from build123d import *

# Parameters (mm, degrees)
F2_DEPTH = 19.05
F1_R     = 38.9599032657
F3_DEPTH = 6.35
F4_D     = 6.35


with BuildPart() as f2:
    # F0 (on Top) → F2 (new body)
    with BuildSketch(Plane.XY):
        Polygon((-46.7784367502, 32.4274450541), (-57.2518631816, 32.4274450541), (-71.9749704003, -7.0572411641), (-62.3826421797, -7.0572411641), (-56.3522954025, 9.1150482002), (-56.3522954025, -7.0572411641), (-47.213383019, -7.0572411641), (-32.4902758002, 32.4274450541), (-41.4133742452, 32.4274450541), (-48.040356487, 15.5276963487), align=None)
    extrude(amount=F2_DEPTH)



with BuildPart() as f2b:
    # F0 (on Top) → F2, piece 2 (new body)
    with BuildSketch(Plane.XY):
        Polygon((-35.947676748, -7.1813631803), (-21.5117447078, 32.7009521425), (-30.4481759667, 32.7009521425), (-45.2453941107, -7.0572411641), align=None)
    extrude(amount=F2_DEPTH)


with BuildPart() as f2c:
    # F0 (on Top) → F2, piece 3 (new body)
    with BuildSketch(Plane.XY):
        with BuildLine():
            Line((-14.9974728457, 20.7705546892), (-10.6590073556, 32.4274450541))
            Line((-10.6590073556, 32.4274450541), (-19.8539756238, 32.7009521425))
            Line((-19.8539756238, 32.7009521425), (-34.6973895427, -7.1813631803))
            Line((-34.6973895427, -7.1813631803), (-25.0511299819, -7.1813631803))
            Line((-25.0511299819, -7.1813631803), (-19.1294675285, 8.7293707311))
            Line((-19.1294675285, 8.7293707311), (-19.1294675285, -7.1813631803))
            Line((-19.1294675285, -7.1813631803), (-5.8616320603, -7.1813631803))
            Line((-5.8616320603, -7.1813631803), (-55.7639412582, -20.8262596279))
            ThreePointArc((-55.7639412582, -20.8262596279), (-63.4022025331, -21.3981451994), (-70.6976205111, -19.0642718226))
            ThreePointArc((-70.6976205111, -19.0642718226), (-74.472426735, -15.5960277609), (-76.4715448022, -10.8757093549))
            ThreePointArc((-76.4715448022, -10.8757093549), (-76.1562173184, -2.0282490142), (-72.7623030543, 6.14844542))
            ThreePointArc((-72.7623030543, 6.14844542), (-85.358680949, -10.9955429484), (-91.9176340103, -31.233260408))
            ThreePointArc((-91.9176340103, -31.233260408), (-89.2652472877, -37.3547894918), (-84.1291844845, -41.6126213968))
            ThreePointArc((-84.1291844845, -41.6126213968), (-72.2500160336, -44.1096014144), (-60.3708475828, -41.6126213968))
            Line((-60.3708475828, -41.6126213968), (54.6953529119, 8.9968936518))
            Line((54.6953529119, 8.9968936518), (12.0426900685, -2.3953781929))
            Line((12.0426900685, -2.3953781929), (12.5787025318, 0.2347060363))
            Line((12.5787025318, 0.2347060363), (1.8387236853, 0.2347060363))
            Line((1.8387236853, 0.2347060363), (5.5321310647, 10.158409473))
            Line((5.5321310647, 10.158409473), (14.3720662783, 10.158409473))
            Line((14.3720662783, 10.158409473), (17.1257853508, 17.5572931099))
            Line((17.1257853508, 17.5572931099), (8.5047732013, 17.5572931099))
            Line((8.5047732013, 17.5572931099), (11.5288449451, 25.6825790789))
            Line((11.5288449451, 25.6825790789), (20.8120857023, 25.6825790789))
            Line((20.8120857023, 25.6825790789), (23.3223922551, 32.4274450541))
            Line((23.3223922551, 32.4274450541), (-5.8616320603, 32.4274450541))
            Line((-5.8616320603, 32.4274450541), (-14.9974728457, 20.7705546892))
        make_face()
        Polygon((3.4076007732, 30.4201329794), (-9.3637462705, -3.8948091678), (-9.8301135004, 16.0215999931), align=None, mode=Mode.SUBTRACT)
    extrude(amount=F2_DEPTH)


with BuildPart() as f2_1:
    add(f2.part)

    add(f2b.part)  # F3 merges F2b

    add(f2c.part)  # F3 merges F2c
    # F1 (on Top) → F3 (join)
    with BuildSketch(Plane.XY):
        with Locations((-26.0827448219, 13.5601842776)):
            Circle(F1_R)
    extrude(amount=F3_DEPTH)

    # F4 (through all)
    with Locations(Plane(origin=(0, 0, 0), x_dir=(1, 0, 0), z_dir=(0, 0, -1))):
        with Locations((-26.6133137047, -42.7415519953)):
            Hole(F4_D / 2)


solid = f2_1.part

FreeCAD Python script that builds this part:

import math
import FreeCAD as App
import Part
import Sketcher

V = App.Vector
Q = App.Units.Quantity

doc = App.newDocument("Part")
body = doc.addObject("PartDesign::Body", "Body")

# Sketch on XY plane
sketch1 = body.newObject("Sketcher::SketchObject", "Sketch")
sketch1.AttachmentSupport = (doc.getObject("XY_Plane"), [""])
sketch1.MapMode = "FlatFace"
sketch1.addGeometry(Part.LineSegment(V(-47, 32, 0), V(-57, 32, 0)), False)
sketch1.addGeometry(Part.LineSegment(V(-57, 32, 0), V(-72, -7, 0)), False)
sketch1.addGeometry(Part.LineSegment(V(-72, -7, 0), V(-62, -7, 0)), False)
sketch1.addGeometry(Part.LineSegment(V(-62, -7, 0), V(-56, 9, 0)), False)
sketch1.addGeometry(Part.LineSegment(V(-56, 9, 0), V(-56, -7, 0)), False)
sketch1.addGeometry(Part.LineSegment(V(-56, -7, 0), V(-47, -7, 0)), False)
sketch1.addGeometry(Part.LineSegment(V(-47, -7, 0), V(-32, 32, 0)), False)
sketch1.addGeometry(Part.LineSegment(V(-32, 32, 0), V(-41, 32, 0)), False)
sketch1.addGeometry(Part.LineSegment(V(-41, 32, 0), V(-48, 16, 0)), False)
sketch1.addGeometry(Part.LineSegment(V(-48, 16, 0), V(-47, 32, 0)), False)
sketch1.addConstraint(Sketcher.Constraint("Coincident", 0, 2, 1, 1))
sketch1.addConstraint(Sketcher.Constraint("Coincident", 1, 2, 2, 1))
sketch1.addConstraint(Sketcher.Constraint("Coincident", 2, 2, 3, 1))
sketch1.addConstraint(Sketcher.Constraint("Coincident", 3, 2, 4, 1))
sketch1.addConstraint(Sketcher.Constraint("Coincident", 4, 2, 5, 1))
sketch1.addConstraint(Sketcher.Constraint("Coincident", 5, 2, 6, 1))
sketch1.addConstraint(Sketcher.Constraint("Coincident", 6, 2, 7, 1))
sketch1.addConstraint(Sketcher.Constraint("Coincident", 7, 2, 8, 1))
sketch1.addConstraint(Sketcher.Constraint("Coincident", 8, 2, 9, 1))
sketch1.addConstraint(Sketcher.Constraint("Coincident", 9, 2, 0, 1))
sketch1.addConstraint(Sketcher.Constraint("Horizontal", 0))
sketch1.addConstraint(Sketcher.Constraint("Horizontal", 2))
sketch1.addConstraint(Sketcher.Constraint("Vertical", 4))
sketch1.addConstraint(Sketcher.Constraint("Horizontal", 5))
sketch1.addConstraint(Sketcher.Constraint("Horizontal", 7))
sketch1.addConstraint(Sketcher.Constraint("Parallel", 1, 3))
sketch1.addConstraint(Sketcher.Constraint("Parallel", 3, 6))
sketch1.addConstraint(Sketcher.Constraint("Horizontal", 2, 2, 4, 2))
sketch1.addConstraint(Sketcher.Constraint("Horizontal", 0, 2, 6, 2))
sketch1.addConstraint(Sketcher.Constraint("DistanceX", 7, 2, 7, 1, 8.923098))
sketch1.addConstraint(Sketcher.Constraint("DistanceX", 2, 1, 2, 2, 9.592328))
sketch1.addConstraint(Sketcher.Constraint("DistanceY", 4, 2, 4, 1, 16.172289))
sketch1.addConstraint(Sketcher.Constraint("Distance", 8, 18.152642))
sketch1.addConstraint(Sketcher.Constraint("DistanceX", 0, 2, 0, 1, 10.473426))
sketch1.addConstraint(Sketcher.Constraint("DistanceX", 5, 1, 5, 2, 9.138912))
sketch1.addConstraint(Sketcher.Constraint("DistanceX", 1, 2, -1, 1, 71.97497))
sketch1.addConstraint(Sketcher.Constraint("DistanceY", 1, 2, -1, 1, 7.057241))
sketch1.addConstraint(Sketcher.Constraint("DistanceX", 2, 2, 0, 2, 5.130779))
sketch1.addConstraint(Sketcher.Constraint("DistanceX", 2, 2, 5, 2, 15.169259))
sketch1.addConstraint(Sketcher.Constraint("DistanceX", 3, 2, 8, 2, 8.311939))
pad1 = body.newObject("PartDesign::Pad", "Pad")
pad1.Profile = sketch1
pad1.Length = Q("0.75 in")
body2 = doc.addObject("PartDesign::Body", "Body001")

# Sketch on XY plane
sketch2 = body2.newObject("Sketcher::SketchObject", "Sketch001")
sketch2.AttachmentSupport = (doc.getObject("XY_Plane001"), [""])
sketch2.MapMode = "FlatFace"
sketch2.addGeometry(Part.LineSegment(V(-36, -7, 0), V(-22, 33, 0)), False)
sketch2.addGeometry(Part.LineSegment(V(-22, 33, 0), V(-30, 33, 0)), False)
sketch2.addGeometry(Part.LineSegment(V(-30, 33, 0), V(-45, -7, 0)), False)
sketch2.addGeometry(Part.LineSegment(V(-45, -7, 0), V(-36, -7, 0)), False)
sketch2.addConstraint(Sketcher.Constraint("Coincident", 0, 2, 1, 1))
sketch2.addConstraint(Sketcher.Constraint("Coincident", 1, 2, 2, 1))
sketch2.addConstraint(Sketcher.Constraint("Coincident", 2, 2, 3, 1))
sketch2.addConstraint(Sketcher.Constraint("Coincident", 3, 2, 0, 1))
sketch2.addConstraint(Sketcher.Constraint("Horizontal", 1))
sketch2.addConstraint(Sketcher.Constraint("DistanceX", 1, 2, 1, 1, 8.936431))
sketch2.addConstraint(Sketcher.Constraint("DistanceX", 3, 2, 1, 2, 5.499501))
sketch2.addConstraint(Sketcher.Constraint("DistanceY", 2, 2, -1, 1, 7.057241))
sketch2.addConstraint(Sketcher.Constraint("DistanceX", 2, 2, 1, 2, 14.797218))
sketch2.addConstraint(Sketcher.Constraint("Distance", 0, 42.414564))
sketch2.addConstraint(Sketcher.Constraint("Distance", 2, 42.422536))
sketch2.addConstraint(Sketcher.Constraint("DistanceX", 0, 2, -1, 1, 21.511745))
pad2 = body2.newObject("PartDesign::Pad", "Pad001")
pad2.Profile = sketch2
pad2.Length = Q("0.75 in")
body3 = doc.addObject("PartDesign::Body", "Body002")

# Sketch on XY plane
sketch3 = body3.newObject("Sketcher::SketchObject", "Sketch002")
sketch3.AttachmentSupport = (doc.getObject("XY_Plane002"), [""])
sketch3.MapMode = "FlatFace"
sketch3.addGeometry(Part.LineSegment(V(-15, 20.8, 0), V(-10.7, 32.4, 0)), False)
sketch3.addGeometry(Part.LineSegment(V(-10.7, 32.4, 0), V(-19.9, 32.7, 0)), False)
sketch3.addGeometry(Part.LineSegment(V(-19.9, 32.7, 0), V(-34.7, -7.2, 0)), False)
sketch3.addGeometry(Part.LineSegment(V(-34.7, -7.2, 0), V(-25.1, -7.2, 0)), False)
sketch3.addGeometry(Part.LineSegment(V(-25.1, -7.2, 0), V(-19.1, 8.7, 0)), False)
sketch3.addGeometry(Part.LineSegment(V(-19.1, 8.7, 0), V(-19.1, -7.2, 0)), False)
sketch3.addGeometry(Part.LineSegment(V(-19.1, -7.2, 0), V(-5.9, -7.2, 0)), False)
sketch3.addGeometry(Part.LineSegment(V(-5.9, -7.2, 0), V(-55.8, -20.8, 0)), False)
sketch3.addGeometry(Part.ArcOfCircle(Part.Circle(V(-61.1, -1.5, 0), V(0, 0, 1), 20.1), math.radians(-119), math.radians(-75)), False)
sketch3.addGeometry(Part.ArcOfCircle(Part.Circle(V(-64.6, -8.6, 0), V(0, 0, 1), 12.1), math.radians(-169), math.radians(-120)), False)
sketch3.addGeometry(Part.ArcOfCircle(Part.Circle(V(-51.9, -7.3, 0), V(0, 0, 1), 24.9), math.radians(147), math.radians(188)), False)
sketch3.addGeometry(Part.ArcOfCircle(Part.Circle(V(-26, -41.4, 0), V(0, 0, 1), 66.7), math.radians(135), math.radians(171)), False)
sketch3.addGeometry(Part.ArcOfCircle(Part.Circle(V(-77.8, -28.8, 0), V(0, 0, 1), 14.3), math.radians(-170), math.radians(-116)), False)
sketch3.addGeometry(Part.ArcOfCircle(Part.Circle(V(-72.3, -14.6, 0), V(0, 0, 1), 29.5), math.radians(-114), math.radians(-66)), False)
sketch3.addGeometry(Part.LineSegment(V(-60.4, -41.6, 0), V(54.7, 9, 0)), False)
sketch3.addGeometry(Part.LineSegment(V(54.7, 9, 0), V(12, -2.4, 0)), False)
sketch3.addGeometry(Part.LineSegment(V(12, -2.4, 0), V(12.6, 0.2, 0)), False)
sketch3.addGeometry(Part.LineSegment(V(12.6, 0.2, 0), V(1.8, 0.2, 0)), False)
sketch3.addGeometry(Part.LineSegment(V(1.8, 0.2, 0), V(5.5, 10.2, 0)), False)
sketch3.addGeometry(Part.LineSegment(V(5.5, 10.2, 0), V(14.4, 10.2, 0)), False)
sketch3.addGeometry(Part.LineSegment(V(14.4, 10.2, 0), V(17.1, 17.6, 0)), False)
sketch3.addGeometry(Part.LineSegment(V(17.1, 17.6, 0), V(8.5, 17.6, 0)), False)
sketch3.addGeometry(Part.LineSegment(V(8.5, 17.6, 0), V(11.5, 25.7, 0)), False)
sketch3.addGeometry(Part.LineSegment(V(11.5, 25.7, 0), V(20.8, 25.7, 0)), False)
sketch3.addGeometry(Part.LineSegment(V(20.8, 25.7, 0), V(23.3, 32.4, 0)), False)
sketch3.addGeometry(Part.LineSegment(V(23.3, 32.4, 0), V(-5.9, 32.4, 0)), False)
sketch3.addGeometry(Part.LineSegment(V(-5.9, 32.4, 0), V(-15, 20.8, 0)), False)
sketch3.addGeometry(Part.LineSegment(V(-9.8, 16, 0), V(3.4, 30.4, 0)), False)
sketch3.addGeometry(Part.LineSegment(V(3.4, 30.4, 0), V(-9.4, -3.9, 0)), False)
sketch3.addGeometry(Part.LineSegment(V(-9.4, -3.9, 0), V(-9.8, 16, 0)), False)
sketch3.addConstraint(Sketcher.Constraint("Coincident", 0, 2, 1, 1))
sketch3.addConstraint(Sketcher.Constraint("Coincident", 1, 2, 2, 1))
sketch3.addConstraint(Sketcher.Constraint("Coincident", 2, 2, 3, 1))
sketch3.addConstraint(Sketcher.Constraint("Coincident", 3, 2, 4, 1))
sketch3.addConstraint(Sketcher.Constraint("Coincident", 4, 2, 5, 1))
sketch3.addConstraint(Sketcher.Constraint("Coincident", 5, 2, 6, 1))
sketch3.addConstraint(Sketcher.Constraint("Coincident", 6, 2, 7, 1))
sketch3.addConstraint(Sketcher.Constraint("Tangent", 7, 2, 8, 2))
sketch3.addConstraint(Sketcher.Constraint("Coincident", 8, 1, 9, 2))
sketch3.addConstraint(Sketcher.Constraint("Coincident", 9, 1, 10, 2))
sketch3.addConstraint(Sketcher.Constraint("Coincident", 10, 1, 11, 1))
sketch3.addConstraint(Sketcher.Constraint("Coincident", 11, 2, 12, 1))
sketch3.addConstraint(Sketcher.Constraint("Coincident", 12, 2, 13, 1))
sketch3.addConstraint(Sketcher.Constraint("Tangent", 13, 2, 14, 1))
sketch3.addConstraint(Sketcher.Constraint("Coincident", 14, 2, 15, 1))
sketch3.addConstraint(Sketcher.Constraint("Coincident", 15, 2, 16, 1))
sketch3.addConstraint(Sketcher.Constraint("Coincident", 16, 2, 17, 1))
sketch3.addConstraint(Sketcher.Constraint("Coincident", 17, 2, 18, 1))
sketch3.addConstraint(Sketcher.Constraint("Coincident", 18, 2, 19, 1))
sketch3.addConstraint(Sketcher.Constraint("Coincident", 19, 2, 20, 1))
sketch3.addConstraint(Sketcher.Constraint("Coincident", 20, 2, 21, 1))
sketch3.addConstraint(Sketcher.Constraint("Coincident", 21, 2, 22, 1))
sketch3.addConstraint(Sketcher.Constraint("Coincident", 22, 2, 23, 1))
sketch3.addConstraint(Sketcher.Constraint("Coincident", 23, 2, 24, 1))
sketch3.addConstraint(Sketcher.Constraint("Coincident", 24, 2, 25, 1))
sketch3.addConstraint(Sketcher.Constraint("Coincident", 25, 2, 26, 1))
sketch3.addConstraint(Sketcher.Constraint("Coincident", 26, 2, 0, 1))
sketch3.addConstraint(Sketcher.Constraint("Coincident", 27, 2, 28, 1))
sketch3.addConstraint(Sketcher.Constraint("Coincident", 28, 2, 29, 1))
sketch3.addConstraint(Sketcher.Constraint("Coincident", 29, 2, 27, 1))
sketch3.addConstraint(Sketcher.Constraint("Horizontal", 3))
sketch3.addConstraint(Sketcher.Constraint("Vertical", 5))
sketch3.addConstraint(Sketcher.Constraint("Horizontal", 6))
sketch3.addConstraint(Sketcher.Constraint("Horizontal", 17))
sketch3.addConstraint(Sketcher.Constraint("Horizontal", 19))
sketch3.addConstraint(Sketcher.Constraint("Horizontal", 21))
sketch3.addConstraint(Sketcher.Constraint("Horizontal", 23))
sketch3.addConstraint(Sketcher.Constraint("Horizontal", 25))
sketch3.addConstraint(Sketcher.Constraint("Parallel", 0, 2))
sketch3.addConstraint(Sketcher.Constraint("Parallel", 2, 4))
sketch3.addConstraint(Sketcher.Constraint("Parallel", 4, 18))
sketch3.addConstraint(Sketcher.Constraint("Parallel", 18, 20))
sketch3.addConstraint(Sketcher.Constraint("Parallel", 20, 22))
sketch3.addConstraint(Sketcher.Constraint("Parallel", 22, 24))
sketch3.addConstraint(Sketcher.Constraint("Parallel", 24, 28))
sketch3.addConstraint(Sketcher.Constraint("Horizontal", 3, 2, 5, 2))
sketch3.addConstraint(Sketcher.Constraint("Horizontal", 12, 2, 13, 2))
sketch3.addConstraint(Sketcher.Constraint("Horizontal", 0, 2, 24, 2))
sketch3.addConstraint(Sketcher.Constraint("Vertical", 6, 2, 25, 2))
sketch3.addConstraint(Sketcher.Constraint("Radius", 8, 20.05188))
sketch3.addConstraint(Sketcher.Constraint("Radius", 10, 24.875162))
sketch3.addConstraint(Sketcher.Constraint("Radius", 9, 12.094402))
sketch3.addConstraint(Sketcher.Constraint("Radius", 11, 66.714325))
sketch3.addConstraint(Sketcher.Constraint("Radius", 12, 14.333652))
sketch3.addConstraint(Sketcher.Constraint("Radius", 13, 29.505553))
sketch3.addConstraint(Sketcher.Constraint("DistanceX", 13, 3, 10, 3, Q("0.8031002 in")))
sketch3.addConstraint(Sketcher.Constraint("DistanceX", 3, 1, 3, 2, 9.64626))
sketch3.addConstraint(Sketcher.Constraint("DistanceX", 17, 2, 17, 1, 10.739979))
sketch3.addConstraint(Sketcher.Constraint("DistanceX", 23, 1, 23, 2, 9.283241))
sketch3.addConstraint(Sketcher.Constraint("DistanceX", -1, 1, 27, 2, 3.407601))
sketch3.addConstraint(Sketcher.Constraint("DistanceY", -1, 1, 29, 2, 16.0216))
sketch3.addConstraint(Sketcher.Constraint("DistanceY", 13, 3, 1, 2, 47.305001))
sketch3.addConstraint(Sketcher.Constraint("DistanceX", 8, 3, 3, 2, 36.001499))
sketch3.addConstraint(Sketcher.Constraint("DistanceX", 9, 3, 7, 2, 8.824202))
sketch3.addConstraint(Sketcher.Constraint("DistanceY", 12, 2, 12, 3, 12.8608))
sketch3.addConstraint(Sketcher.Constraint("DistanceX", 4, 2, 18, 2, 24.661599))
sketch3.addConstraint(Sketcher.Constraint("DistanceX", 6, 2, 19, 2, 20.233698))
sketch3.addConstraint(Sketcher.Constraint("DistanceX", 20, 2, 23, 2, 3.6863))
sketch3.addConstraint(Sketcher.Constraint("Distance", 0, 12.438062))
sketch3.addConstraint(Sketcher.Constraint("Distance", 4, 16.976971))
sketch3.addConstraint(Sketcher.Constraint("Distance", 14, 125.70423))
sketch3.addConstraint(Sketcher.Constraint("Distance", 15, 44.14786))
sketch3.addConstraint(Sketcher.Constraint("Distance", 16, 2.684148))
sketch3.addConstraint(Sketcher.Constraint("Distance", 20, 7.89471))
sketch3.addConstraint(Sketcher.Constraint("Distance", 22, 8.669791))
sketch3.addConstraint(Sketcher.Constraint("Distance", 27, 19.559009))
sketch3.addConstraint(Sketcher.Constraint("Distance", 29, 19.921869))
sketch3.addConstraint(Sketcher.Constraint("DistanceX", 6, 1, 6, 2, 13.267835))
sketch3.addConstraint(Sketcher.Constraint("DistanceX", 21, 2, 21, 1, 8.621012))
sketch3.addConstraint(Sketcher.Constraint("DistanceX", 25, 2, 25, 1, 29.184024))
sketch3.addConstraint(Sketcher.Constraint("DistanceX", 8, 3, -1, 1, 61.052629))
sketch3.addConstraint(Sketcher.Constraint("DistanceX", 10, 3, -1, 1, 51.851271))
sketch3.addConstraint(Sketcher.Constraint("DistanceY", 11, 3, -1, 1, 41.419818))
sketch3.addConstraint(Sketcher.Constraint("DistanceX", 12, 3, -1, 1, 77.800409))
sketch3.addConstraint(Sketcher.Constraint("DistanceY", 12, 3, -1, 1, 28.751821))
sketch3.addConstraint(Sketcher.Constraint("DistanceY", -1, 1, 4, 2, 8.729371))
sketch3.addConstraint(Sketcher.Constraint("DistanceX", 7, 2, -1, 1, 55.763941))
sketch3.addConstraint(Sketcher.Constraint("DistanceX", 8, 1, -1, 1, 70.697621))
sketch3.addConstraint(Sketcher.Constraint("DistanceY", 9, 1, -1, 1, 10.875709))
sketch3.addConstraint(Sketcher.Constraint("DistanceY", 11, 2, -1, 1, 31.23326))
sketch3.addConstraint(Sketcher.Constraint("DistanceX", -1, 1, 15, 2, 12.04269))
sketch3.addConstraint(Sketcher.Constraint("DistanceY", -1, 1, 18, 2, 10.158409))
sketch3.addConstraint(Sketcher.Constraint("DistanceY", 28, 2, -1, 1, 3.894809))
sketch3.addConstraint(Sketcher.Constraint("DistanceX", 8, 3, 0, 2, 50.393621))
pad3 = body3.newObject("PartDesign::Pad", "Pad002")
pad3.Profile = sketch3
pad3.Length = Q("0.75 in")
body.AllowCompound = True
doc.recompute()

boolean = body.newObject("PartDesign::Boolean", "Boolean")
boolean.Type = "Fuse"
boolean.addObjects([body2])
doc.recompute()

boolean2 = body.newObject("PartDesign::Boolean", "Boolean001")
boolean2.Type = "Fuse"
boolean2.addObjects([body3])

# Sketch on XY plane
sketch4 = body.newObject("Sketcher::SketchObject", "Sketch003")
sketch4.AttachmentSupport = (doc.getObject("XY_Plane"), [""])
sketch4.MapMode = "FlatFace"
sketch4.addGeometry(Part.Circle(V(-26, 14, 0), V(0, 0, 1), 39), False)
sketch4.addConstraint(Sketcher.Constraint("Diameter", 0, 77.919807))
sketch4.addConstraint(Sketcher.Constraint("DistanceX", 0, 3, -1, 1, 26.082745))
sketch4.addConstraint(Sketcher.Constraint("DistanceY", -1, 1, 0, 3, 13.560184))
pad4 = body.newObject("PartDesign::Pad", "Pad003")
pad4.Profile = sketch4
pad4.Length = Q("0.25 in")

# Sketch on XY plane
sketch5 = body.newObject("Sketcher::SketchObject", "Sketch004")
sketch5.AttachmentSupport = (doc.getObject("XY_Plane"), [""])
sketch5.MapMode = "FlatFace"
sketch5.addGeometry(Part.Circle(V(-26.6, 42.7, 0), V(0, 0, 1), 3.2), False)
sketch5.addConstraint(Sketcher.Constraint("Diameter", 0, Q("0.25 in")))
sketch5.addConstraint(Sketcher.Constraint("DistanceY", -1, 1, 0, 3, 42.741552))
sketch5.addConstraint(Sketcher.Constraint("DistanceX", 0, 3, -1, 1, 26.613314))
doc.recompute()
hole = body.newObject("PartDesign::Hole", "Hole")
hole.Profile = sketch5
hole.ThreadType = "None"
hole.Diameter = Q("0.25 in")
hole.DepthType = "ThroughAll"
hole.Reversed = True

doc.recompute()
